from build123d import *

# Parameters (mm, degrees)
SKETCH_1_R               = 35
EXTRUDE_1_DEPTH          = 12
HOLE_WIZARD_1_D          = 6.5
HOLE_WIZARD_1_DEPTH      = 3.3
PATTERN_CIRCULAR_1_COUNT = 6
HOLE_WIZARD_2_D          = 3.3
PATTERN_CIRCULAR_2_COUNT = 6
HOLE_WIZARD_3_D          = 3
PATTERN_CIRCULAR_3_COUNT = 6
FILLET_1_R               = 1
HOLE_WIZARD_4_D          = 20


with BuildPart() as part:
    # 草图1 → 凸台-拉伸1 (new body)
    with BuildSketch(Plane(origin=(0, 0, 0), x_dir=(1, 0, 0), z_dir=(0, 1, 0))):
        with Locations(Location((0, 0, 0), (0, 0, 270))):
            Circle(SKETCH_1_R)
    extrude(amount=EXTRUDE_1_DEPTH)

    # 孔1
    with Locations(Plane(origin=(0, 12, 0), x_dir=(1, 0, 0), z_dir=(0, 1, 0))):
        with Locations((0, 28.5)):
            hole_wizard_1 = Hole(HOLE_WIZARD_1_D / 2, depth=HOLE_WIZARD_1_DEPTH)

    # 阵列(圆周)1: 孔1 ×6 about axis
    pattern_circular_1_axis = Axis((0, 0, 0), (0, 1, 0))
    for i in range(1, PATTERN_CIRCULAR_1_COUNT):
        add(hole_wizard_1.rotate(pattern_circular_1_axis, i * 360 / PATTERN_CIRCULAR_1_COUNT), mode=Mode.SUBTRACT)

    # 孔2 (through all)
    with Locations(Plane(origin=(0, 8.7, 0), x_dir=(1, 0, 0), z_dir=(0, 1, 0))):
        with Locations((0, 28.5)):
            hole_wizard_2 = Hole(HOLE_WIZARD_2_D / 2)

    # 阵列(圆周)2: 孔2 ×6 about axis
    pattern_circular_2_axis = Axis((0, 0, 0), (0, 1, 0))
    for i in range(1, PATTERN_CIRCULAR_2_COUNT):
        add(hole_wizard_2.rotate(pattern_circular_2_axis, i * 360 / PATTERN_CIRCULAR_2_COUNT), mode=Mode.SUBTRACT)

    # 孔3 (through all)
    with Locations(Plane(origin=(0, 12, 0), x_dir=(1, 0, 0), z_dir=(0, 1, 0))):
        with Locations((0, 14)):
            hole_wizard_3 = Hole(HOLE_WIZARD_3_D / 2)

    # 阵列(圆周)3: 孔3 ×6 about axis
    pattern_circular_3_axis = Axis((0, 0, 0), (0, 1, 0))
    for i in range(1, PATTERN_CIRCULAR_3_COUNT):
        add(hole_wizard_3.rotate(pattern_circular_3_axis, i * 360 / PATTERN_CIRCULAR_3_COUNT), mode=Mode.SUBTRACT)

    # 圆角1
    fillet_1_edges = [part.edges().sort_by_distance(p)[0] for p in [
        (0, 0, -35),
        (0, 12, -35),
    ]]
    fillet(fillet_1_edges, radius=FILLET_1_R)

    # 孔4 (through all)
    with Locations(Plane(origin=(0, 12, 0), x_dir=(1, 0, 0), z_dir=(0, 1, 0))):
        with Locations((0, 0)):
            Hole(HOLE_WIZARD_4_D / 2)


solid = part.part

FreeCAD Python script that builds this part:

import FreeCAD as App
import Part
import Sketcher

V = App.Vector


def edges_at(feature, points):
    """Names of the edges that pass closest to the given points."""
    edges = feature.Shape.Edges
    near = lambda p: min(range(len(edges)), key=lambda i: edges[i].distToShape(Part.Vertex(*p))[0])
    return sorted({f"Edge{near(p) + 1}" for p in points})

doc = App.newDocument("Part")
body = doc.addObject("PartDesign::Body", "Body")

# Sketch on XZ plane
sketch1 = doc.addObject("Sketcher::SketchObject", "Sketch")
body.addObject(sketch1)
sketch1.AttachmentSupport = (doc.XZ_Plane, [""])
sketch1.MapMode = "FlatFace"
sketch1.addGeometry(Part.Circle(V(0, 0, 0), V(0, 0, 1), 35), False)
sketch1.addConstraint(Sketcher.Constraint("Coincident", 0, 3, -1, 1))
sketch1.addConstraint(Sketcher.Constraint("Diameter", 0, 70.0))
pad1 = doc.addObject("PartDesign::Pad", "Pad")
body.addObject(pad1)
pad1.Profile = sketch1
pad1.Length = 12
pad1.Reversed = True

# Sketch on XZ plane
sketch2 = doc.addObject("Sketcher::SketchObject", "Sketch001")
body.addObject(sketch2)
sketch2.AttachmentSupport = (doc.XZ_Plane, [""])
sketch2.MapMode = "FlatFace"
sketch2.AttachmentOffset = App.Placement(V(0, 0, -12), App.Rotation())
sketch2.addGeometry(Part.Circle(V(0, -28.5, 0), V(0, 0, 1), 3.25), False)
sketch2.addConstraint(Sketcher.Constraint("PointOnObject", 0, 3, -2))
sketch2.addConstraint(Sketcher.Constraint("Diameter", 0, 6.5))
sketch2.addConstraint(Sketcher.Constraint("DistanceY", 0, 3, -1, 1, 28.5))
doc.recompute()
hole = doc.addObject("PartDesign::Hole", "Hole")
body.addObject(hole)
hole.Profile = sketch2
hole.ThreadType = "None"
hole.Diameter = 6.5
hole.DepthType = "Dimension"
hole.Depth = 3.3
hole.DrillPoint = "Flat"
hole.Reversed = True
doc.recompute()

polarpattern = doc.addObject("PartDesign::PolarPattern", "PolarPattern")
body.addObject(polarpattern)
polarpattern.Originals = [hole]
polarpattern.Axis = (doc.Y_Axis, [""])
polarpattern.Angle = 360
polarpattern.Occurrences = 6
body.Tip = polarpattern

# Sketch on XZ plane
sketch3 = doc.addObject("Sketcher::SketchObject", "Sketch002")
body.addObject(sketch3)
sketch3.AttachmentSupport = (doc.XZ_Plane, [""])
sketch3.MapMode = "FlatFace"
sketch3.AttachmentOffset = App.Placement(V(0, 0, -8.7), App.Rotation())
sketch3.addGeometry(Part.Circle(V(0, -28.5, 0), V(0, 0, 1), 1.65), False)
sketch3.addConstraint(Sketcher.Constraint("PointOnObject", 0, 3, -2))
sketch3.addConstraint(Sketcher.Constraint("Diameter", 0, 3.3))
sketch3.addConstraint(Sketcher.Constraint("DistanceY", 0, 3, -1, 1, 28.5))
doc.recompute()
hole2 = doc.addObject("PartDesign::Hole", "Hole001")
body.addObject(hole2)
hole2.Profile = sketch3
hole2.ThreadType = "None"
hole2.Diameter = 3.3
hole2.DepthType = "ThroughAll"
hole2.Reversed = True
doc.recompute()

polarpattern2 = doc.addObject("PartDesign::PolarPattern", "PolarPattern001")
body.addObject(polarpattern2)
polarpattern2.Originals = [hole2]
polarpattern2.Axis = (doc.Y_Axis, [""])
polarpattern2.Angle = 360
polarpattern2.Occurrences = 6
body.Tip = polarpattern2

# Sketch on XZ plane
sketch4 = doc.addObject("Sketcher::SketchObject", "Sketch003")
body.addObject(sketch4)
sketch4.AttachmentSupport = (doc.XZ_Plane, [""])
sketch4.MapMode = "FlatFace"
sketch4.AttachmentOffset = App.Placement(V(0, 0, -12), App.Rotation())
sketch4.addGeometry(Part.Circle(V(0, -14, 0), V(0, 0, 1), 1.5), False)
sketch4.addConstraint(Sketcher.Constraint("PointOnObject", 0, 3, -2))
sketch4.addConstraint(Sketcher.Constraint("Diameter", 0, 3.0))
sketch4.addConstraint(Sketcher.Constraint("DistanceY", 0, 3, -1, 1, 14.0))
doc.recompute()
hole3 = doc.addObject("PartDesign::Hole", "Hole002")
body.addObject(hole3)
hole3.Profile = sketch4
hole3.ThreadType = "None"
hole3.Diameter = 3
hole3.DepthType = "ThroughAll"
hole3.Reversed = True
doc.recompute()

polarpattern3 = doc.addObject("PartDesign::PolarPattern", "PolarPattern002")
body.addObject(polarpattern3)
polarpattern3.Originals = [hole3]
polarpattern3.Axis = (doc.Y_Axis, [""])
polarpattern3.Angle = 360
polarpattern3.Occurrences = 6
body.Tip = polarpattern3
doc.recompute()

fillet = doc.addObject("PartDesign::Fillet", "Fillet")
body.addObject(fillet)
fillet.Base = (polarpattern3, edges_at(polarpattern3, [(0, 0, -35), (0, 12, -35)]))
fillet.Radius = 1

# Sketch on XZ plane
sketch5 = doc.addObject("Sketcher::SketchObject", "Sketch004")
body.addObject(sketch5)
sketch5.AttachmentSupport = (doc.XZ_Plane, [""])
sketch5.MapMode = "FlatFace"
sketch5.AttachmentOffset = App.Placement(V(0, 0, -12), App.Rotation())
sketch5.addGeometry(Part.Circle(V(0, 0, 0), V(0, 0, 1), 10), False)
sketch5.addConstraint(Sketcher.Constraint("Coincident", 0, 3, -1, 1))
sketch5.addConstraint(Sketcher.Constraint("Diameter", 0, 20.0))
doc.recompute()
hole4 = doc.addObject("PartDesign::Hole", "Hole003")
body.addObject(hole4)
hole4.Profile = sketch5
hole4.ThreadType = "None"
hole4.Diameter = 20
hole4.DepthType = "ThroughAll"
hole4.Reversed = True

doc.recompute()
